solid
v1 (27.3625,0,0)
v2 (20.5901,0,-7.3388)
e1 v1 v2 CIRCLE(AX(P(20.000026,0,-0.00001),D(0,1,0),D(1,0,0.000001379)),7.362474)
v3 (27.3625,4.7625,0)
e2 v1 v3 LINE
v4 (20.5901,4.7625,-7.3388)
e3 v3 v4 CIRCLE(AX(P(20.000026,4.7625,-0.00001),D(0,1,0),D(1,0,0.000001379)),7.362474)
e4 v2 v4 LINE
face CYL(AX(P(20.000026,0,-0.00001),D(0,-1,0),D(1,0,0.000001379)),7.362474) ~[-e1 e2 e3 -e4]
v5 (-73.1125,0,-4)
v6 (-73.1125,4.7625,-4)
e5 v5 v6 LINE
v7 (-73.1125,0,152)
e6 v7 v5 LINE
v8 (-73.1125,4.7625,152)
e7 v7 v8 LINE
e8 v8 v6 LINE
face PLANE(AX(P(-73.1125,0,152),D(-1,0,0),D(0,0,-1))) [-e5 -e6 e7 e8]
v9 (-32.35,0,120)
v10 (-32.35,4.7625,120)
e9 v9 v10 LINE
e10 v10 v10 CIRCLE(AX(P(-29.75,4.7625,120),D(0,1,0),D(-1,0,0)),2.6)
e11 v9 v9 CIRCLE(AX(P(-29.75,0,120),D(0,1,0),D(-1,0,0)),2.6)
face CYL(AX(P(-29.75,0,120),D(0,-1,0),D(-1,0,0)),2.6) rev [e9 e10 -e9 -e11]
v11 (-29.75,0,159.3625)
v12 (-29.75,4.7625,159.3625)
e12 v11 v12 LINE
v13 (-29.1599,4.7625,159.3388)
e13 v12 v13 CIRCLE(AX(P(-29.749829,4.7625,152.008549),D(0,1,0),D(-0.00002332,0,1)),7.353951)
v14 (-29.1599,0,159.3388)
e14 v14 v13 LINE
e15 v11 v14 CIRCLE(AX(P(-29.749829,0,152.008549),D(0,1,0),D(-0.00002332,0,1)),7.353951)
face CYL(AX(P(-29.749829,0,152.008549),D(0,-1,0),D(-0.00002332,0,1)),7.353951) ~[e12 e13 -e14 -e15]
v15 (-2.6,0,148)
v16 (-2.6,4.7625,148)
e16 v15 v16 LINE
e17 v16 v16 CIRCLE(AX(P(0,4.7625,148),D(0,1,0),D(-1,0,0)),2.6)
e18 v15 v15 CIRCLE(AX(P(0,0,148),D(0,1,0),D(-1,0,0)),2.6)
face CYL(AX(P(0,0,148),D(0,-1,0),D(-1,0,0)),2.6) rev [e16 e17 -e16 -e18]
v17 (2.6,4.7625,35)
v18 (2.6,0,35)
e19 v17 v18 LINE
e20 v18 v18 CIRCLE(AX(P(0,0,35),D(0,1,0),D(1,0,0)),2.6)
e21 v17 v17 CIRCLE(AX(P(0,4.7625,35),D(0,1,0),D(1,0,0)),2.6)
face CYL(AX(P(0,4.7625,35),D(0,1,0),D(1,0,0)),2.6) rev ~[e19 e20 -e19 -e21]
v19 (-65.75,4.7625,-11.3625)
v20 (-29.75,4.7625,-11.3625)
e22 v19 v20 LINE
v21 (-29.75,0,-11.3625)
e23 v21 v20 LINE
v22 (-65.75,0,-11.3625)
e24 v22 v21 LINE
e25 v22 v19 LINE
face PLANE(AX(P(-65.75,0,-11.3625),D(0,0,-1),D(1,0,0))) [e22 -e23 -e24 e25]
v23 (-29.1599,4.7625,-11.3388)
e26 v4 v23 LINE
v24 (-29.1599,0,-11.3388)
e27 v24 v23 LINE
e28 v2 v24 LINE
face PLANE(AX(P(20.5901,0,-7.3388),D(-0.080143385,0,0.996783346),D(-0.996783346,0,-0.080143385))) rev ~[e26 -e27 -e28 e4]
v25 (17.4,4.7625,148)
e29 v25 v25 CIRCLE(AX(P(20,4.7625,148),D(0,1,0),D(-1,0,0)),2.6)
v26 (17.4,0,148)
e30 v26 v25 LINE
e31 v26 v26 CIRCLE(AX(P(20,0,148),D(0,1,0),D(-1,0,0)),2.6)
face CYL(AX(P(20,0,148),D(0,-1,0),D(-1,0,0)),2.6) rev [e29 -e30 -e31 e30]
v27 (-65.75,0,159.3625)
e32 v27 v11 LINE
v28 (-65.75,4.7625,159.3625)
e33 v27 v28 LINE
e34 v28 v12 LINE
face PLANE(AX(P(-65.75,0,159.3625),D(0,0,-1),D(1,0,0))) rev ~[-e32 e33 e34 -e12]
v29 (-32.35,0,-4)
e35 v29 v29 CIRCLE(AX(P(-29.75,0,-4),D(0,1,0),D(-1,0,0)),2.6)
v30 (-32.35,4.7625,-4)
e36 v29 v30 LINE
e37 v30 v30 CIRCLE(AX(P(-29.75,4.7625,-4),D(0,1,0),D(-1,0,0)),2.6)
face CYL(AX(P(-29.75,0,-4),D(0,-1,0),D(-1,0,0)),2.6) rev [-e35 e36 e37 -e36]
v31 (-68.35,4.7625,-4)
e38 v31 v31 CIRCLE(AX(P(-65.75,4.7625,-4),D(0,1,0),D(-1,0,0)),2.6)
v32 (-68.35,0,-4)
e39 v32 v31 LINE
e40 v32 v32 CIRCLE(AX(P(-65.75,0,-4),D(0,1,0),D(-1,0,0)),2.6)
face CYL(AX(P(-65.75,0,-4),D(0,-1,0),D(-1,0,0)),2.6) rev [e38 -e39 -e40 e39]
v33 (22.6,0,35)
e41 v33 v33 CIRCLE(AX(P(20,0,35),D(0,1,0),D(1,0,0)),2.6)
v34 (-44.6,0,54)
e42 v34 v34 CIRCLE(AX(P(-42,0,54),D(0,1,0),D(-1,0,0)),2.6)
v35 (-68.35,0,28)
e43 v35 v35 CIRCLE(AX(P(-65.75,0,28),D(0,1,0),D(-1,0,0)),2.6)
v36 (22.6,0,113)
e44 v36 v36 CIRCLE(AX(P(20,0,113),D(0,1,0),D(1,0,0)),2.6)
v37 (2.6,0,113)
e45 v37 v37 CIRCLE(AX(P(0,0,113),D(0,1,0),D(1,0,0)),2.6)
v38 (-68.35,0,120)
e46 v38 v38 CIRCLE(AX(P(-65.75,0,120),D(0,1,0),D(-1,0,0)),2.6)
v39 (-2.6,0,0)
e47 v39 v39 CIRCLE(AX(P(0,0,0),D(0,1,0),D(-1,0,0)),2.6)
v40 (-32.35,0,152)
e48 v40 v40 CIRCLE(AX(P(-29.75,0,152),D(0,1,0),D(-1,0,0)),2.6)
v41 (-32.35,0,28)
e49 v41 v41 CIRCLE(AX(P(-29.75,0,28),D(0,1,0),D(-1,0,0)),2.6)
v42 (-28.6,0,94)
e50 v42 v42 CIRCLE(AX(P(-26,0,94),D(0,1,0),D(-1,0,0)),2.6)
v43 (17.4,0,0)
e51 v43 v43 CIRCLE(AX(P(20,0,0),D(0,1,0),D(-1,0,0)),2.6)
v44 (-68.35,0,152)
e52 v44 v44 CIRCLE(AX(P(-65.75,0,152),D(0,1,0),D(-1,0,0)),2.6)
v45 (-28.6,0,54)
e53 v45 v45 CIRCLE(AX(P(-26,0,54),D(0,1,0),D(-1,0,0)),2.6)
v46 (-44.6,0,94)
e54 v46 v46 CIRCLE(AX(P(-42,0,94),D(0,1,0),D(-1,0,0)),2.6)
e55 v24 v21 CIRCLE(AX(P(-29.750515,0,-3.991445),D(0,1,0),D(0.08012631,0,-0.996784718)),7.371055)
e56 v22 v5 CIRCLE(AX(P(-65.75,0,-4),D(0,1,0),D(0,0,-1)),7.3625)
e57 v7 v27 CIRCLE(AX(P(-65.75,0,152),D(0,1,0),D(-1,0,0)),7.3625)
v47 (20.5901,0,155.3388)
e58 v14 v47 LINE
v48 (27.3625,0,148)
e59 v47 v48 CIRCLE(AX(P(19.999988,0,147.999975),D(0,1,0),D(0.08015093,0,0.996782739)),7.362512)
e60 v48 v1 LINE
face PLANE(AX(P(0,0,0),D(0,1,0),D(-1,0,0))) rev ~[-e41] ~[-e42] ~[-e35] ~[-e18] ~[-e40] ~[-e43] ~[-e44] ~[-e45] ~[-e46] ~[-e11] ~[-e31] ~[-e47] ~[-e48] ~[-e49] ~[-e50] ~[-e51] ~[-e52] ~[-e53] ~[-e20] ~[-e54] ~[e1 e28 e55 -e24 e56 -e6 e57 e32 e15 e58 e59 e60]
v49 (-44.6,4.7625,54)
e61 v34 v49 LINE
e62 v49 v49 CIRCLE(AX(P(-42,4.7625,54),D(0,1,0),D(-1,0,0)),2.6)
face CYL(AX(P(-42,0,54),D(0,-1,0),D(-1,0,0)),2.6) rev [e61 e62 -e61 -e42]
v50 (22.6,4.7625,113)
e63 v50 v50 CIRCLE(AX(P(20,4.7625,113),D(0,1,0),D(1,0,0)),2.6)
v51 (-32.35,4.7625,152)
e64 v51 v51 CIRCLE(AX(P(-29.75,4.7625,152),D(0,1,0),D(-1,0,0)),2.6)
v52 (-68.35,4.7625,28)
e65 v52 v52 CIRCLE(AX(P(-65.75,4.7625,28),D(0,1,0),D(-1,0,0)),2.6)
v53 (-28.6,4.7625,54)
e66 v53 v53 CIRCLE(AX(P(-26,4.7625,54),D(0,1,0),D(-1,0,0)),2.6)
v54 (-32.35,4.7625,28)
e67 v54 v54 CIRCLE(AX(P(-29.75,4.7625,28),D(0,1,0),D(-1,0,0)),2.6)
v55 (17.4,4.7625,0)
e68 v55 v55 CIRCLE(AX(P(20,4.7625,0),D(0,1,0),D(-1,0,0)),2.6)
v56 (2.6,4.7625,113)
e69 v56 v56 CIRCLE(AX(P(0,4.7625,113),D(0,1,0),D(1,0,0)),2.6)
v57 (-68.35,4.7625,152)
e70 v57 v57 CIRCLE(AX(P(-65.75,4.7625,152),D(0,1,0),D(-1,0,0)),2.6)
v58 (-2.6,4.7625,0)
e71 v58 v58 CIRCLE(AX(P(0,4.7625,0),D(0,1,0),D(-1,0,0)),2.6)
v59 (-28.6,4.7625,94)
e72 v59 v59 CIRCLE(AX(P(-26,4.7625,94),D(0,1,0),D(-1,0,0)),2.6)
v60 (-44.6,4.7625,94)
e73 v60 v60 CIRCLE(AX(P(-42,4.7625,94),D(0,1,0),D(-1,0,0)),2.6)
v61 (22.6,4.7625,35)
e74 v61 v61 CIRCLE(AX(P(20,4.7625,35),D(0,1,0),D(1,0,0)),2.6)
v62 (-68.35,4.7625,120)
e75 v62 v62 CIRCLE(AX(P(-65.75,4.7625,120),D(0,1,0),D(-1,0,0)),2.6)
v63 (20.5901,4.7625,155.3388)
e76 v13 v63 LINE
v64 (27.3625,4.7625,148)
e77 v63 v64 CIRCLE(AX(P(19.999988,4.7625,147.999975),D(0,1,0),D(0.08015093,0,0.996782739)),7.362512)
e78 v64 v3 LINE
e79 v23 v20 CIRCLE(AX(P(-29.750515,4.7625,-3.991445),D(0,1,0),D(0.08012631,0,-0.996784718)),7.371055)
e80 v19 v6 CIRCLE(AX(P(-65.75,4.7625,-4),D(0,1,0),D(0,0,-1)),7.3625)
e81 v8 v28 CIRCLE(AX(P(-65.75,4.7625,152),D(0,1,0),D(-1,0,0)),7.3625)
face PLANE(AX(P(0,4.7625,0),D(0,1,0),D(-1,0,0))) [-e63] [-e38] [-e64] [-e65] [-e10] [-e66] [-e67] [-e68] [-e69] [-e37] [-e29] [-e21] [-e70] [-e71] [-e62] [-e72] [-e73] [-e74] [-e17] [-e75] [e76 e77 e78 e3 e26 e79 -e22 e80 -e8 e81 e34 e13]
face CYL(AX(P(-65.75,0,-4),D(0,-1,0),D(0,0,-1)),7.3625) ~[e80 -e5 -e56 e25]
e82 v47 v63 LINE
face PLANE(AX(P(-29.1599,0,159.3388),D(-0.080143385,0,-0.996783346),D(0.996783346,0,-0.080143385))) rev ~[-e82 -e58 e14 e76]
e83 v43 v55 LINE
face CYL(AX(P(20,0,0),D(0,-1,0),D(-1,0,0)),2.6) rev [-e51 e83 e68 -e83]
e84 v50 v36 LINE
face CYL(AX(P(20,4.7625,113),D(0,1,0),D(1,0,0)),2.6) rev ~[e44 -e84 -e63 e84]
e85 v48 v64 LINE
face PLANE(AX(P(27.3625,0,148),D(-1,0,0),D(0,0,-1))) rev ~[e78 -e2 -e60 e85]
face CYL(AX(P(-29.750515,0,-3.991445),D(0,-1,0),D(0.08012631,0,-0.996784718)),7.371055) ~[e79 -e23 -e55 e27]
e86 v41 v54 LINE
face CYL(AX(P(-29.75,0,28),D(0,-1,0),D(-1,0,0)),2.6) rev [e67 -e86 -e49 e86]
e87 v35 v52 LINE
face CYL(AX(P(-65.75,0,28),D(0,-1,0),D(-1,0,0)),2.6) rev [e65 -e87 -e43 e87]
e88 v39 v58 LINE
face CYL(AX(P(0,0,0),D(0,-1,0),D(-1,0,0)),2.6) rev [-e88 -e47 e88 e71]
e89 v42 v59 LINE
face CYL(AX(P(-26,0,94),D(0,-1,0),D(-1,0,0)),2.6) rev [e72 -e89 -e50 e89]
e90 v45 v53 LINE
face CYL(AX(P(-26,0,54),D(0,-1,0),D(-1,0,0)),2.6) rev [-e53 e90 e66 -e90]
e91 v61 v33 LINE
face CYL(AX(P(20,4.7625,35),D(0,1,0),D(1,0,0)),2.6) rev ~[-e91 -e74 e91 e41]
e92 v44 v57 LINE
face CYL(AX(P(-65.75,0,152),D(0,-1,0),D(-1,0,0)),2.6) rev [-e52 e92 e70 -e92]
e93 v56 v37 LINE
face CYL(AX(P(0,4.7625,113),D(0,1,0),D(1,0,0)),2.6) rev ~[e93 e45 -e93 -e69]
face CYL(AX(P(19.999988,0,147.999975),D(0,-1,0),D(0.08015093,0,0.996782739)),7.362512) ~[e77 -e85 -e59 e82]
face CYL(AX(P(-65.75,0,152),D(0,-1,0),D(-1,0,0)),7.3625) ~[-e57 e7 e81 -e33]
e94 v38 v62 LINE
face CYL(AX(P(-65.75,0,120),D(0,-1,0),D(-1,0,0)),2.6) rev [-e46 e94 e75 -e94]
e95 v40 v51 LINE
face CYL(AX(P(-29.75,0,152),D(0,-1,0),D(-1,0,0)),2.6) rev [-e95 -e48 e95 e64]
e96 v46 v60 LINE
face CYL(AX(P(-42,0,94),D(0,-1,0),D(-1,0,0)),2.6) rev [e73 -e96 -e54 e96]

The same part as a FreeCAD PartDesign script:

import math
import FreeCAD as App
import Part
import Sketcher

doc = App.newDocument("Part")
params = doc.addObject("Spreadsheet::Sheet", "Params")
for row, (alias, value) in enumerate([
    ("sketch1_diameter", "5.2 mm"),
    ("sketch1_diameter2", "5.2 mm"),
    ("sketch1_diameter3", "5.2 mm"),
    ("sketch1_diameter4", "5.2 mm"),
    ("sketch1_diameter5", "5.2 mm"),
    ("pad1_length", "4.7625 mm"),
    ("sketch2_diameter", "5.2 mm"),
    ("sketch3_diameter", "5.2 mm"),
], start=1):
    params.set(f"A{row}", alias)
    params.set(f"B{row}", "=" + value)
    params.setAlias(f"B{row}", alias)

body = doc.addObject("PartDesign::Body", "Body")

sketch1 = body.newObject("Sketcher::SketchObject", "Sketch")
sketch1.AttachmentSupport = (doc.getObject("XZ_Plane"), [""])
sketch1.MapMode = "FlatFace"
sketch1.addGeometry(Part.LineSegment(App.Vector(-73.1125, -4, 0), App.Vector(-73.1125, 152, 0)), False)
sketch1.addGeometry(Part.ArcOfCircle(Part.Circle(App.Vector(-65.75, 152, 0), App.Vector(0, 0, 1), 7.3625), math.radians(90), math.radians(180)), False)
sketch1.addGeometry(Part.LineSegment(App.Vector(-65.75, 159.3625, 0), App.Vector(-29.75, 159.3625, 0)), False)
sketch1.addGeometry(Part.ArcOfCircle(Part.Circle(App.Vector(-29.749829, 152.008549, 0), App.Vector(0, 0, 1), 7.353951), math.radians(85.398831), math.radians(90.001336)), False)
sketch1.addGeometry(Part.LineSegment(App.Vector(-29.1599, 159.3388, 0), App.Vector(20.5901, 155.3388, 0)), False)
sketch1.addGeometry(Part.ArcOfCircle(Part.Circle(App.Vector(20, 148, 0), App.Vector(0, 0, 1), 7.3625), math.radians(0), math.radians(85.402838)), False)
sketch1.addGeometry(Part.LineSegment(App.Vector(27.3625, 148, 0), App.Vector(27.3625, 0, 0)), False)
sketch1.addGeometry(Part.ArcOfCircle(Part.Circle(App.Vector(20, 0, 0), App.Vector(0, 0, 1), 7.3625), math.radians(-85.402838), math.radians(0)), False)
sketch1.addGeometry(Part.LineSegment(App.Vector(20.5901, -7.3388, 0), App.Vector(-29.1599, -11.3388, 0)), False)
sketch1.addGeometry(Part.ArcOfCircle(Part.Circle(App.Vector(-29.750515, -3.991445, 0), App.Vector(0, 0, 1), 7.371055), math.radians(-89.995994), math.radians(-85.404174)), False)
sketch1.addGeometry(Part.LineSegment(App.Vector(-29.75, -11.3625, 0), App.Vector(-65.75, -11.3625, 0)), False)
sketch1.addGeometry(Part.ArcOfCircle(Part.Circle(App.Vector(-65.75, -4, 0), App.Vector(0, 0, 1), 7.3625), math.radians(180), math.radians(270)), False)
sketch1.addGeometry(Part.Circle(App.Vector(20, 0, 0), App.Vector(0, 0, 1), 2.6), False)
sketch1.addGeometry(Part.Circle(App.Vector(0, 0, 0), App.Vector(0, 0, 1), 2.6), False)
sketch1.addGeometry(Part.Circle(App.Vector(-29.75, -4, 0), App.Vector(0, 0, 1), 2.6), False)
sketch1.addGeometry(Part.Circle(App.Vector(-29.75, 28, 0), App.Vector(0, 0, 1), 2.6), False)
sketch1.addGeometry(Part.Circle(App.Vector(-65.75, -4, 0), App.Vector(0, 0, 1), 2.6), False)
sketch1.addGeometry(Part.Circle(App.Vector(-65.75, 28, 0), App.Vector(0, 0, 1), 2.6), False)
sketch1.addGeometry(Part.Circle(App.Vector(-26, 54, 0), App.Vector(0, 0, 1), 2.6), False)
sketch1.addGeometry(Part.Circle(App.Vector(-42, 54, 0), App.Vector(0, 0, 1), 2.6), False)
sketch1.addGeometry(Part.Circle(App.Vector(20, 148, 0), App.Vector(0, 0, 1), 2.6), False)
sketch1.addGeometry(Part.Circle(App.Vector(0, 148, 0), App.Vector(0, 0, 1), 2.6), False)
sketch1.addGeometry(Part.Circle(App.Vector(-26, 94, 0), App.Vector(0, 0, 1), 2.6), False)
sketch1.addGeometry(Part.Circle(App.Vector(-42, 94, 0), App.Vector(0, 0, 1), 2.6), False)
sketch1.addGeometry(Part.Circle(App.Vector(-29.75, 120, 0), App.Vector(0, 0, 1), 2.6), False)
sketch1.addGeometry(Part.Circle(App.Vector(-29.75, 152, 0), App.Vector(0, 0, 1), 2.6), False)
sketch1.addGeometry(Part.Circle(App.Vector(-65.75, 120, 0), App.Vector(0, 0, 1), 2.6), False)
sketch1.addGeometry(Part.Circle(App.Vector(-65.75, 152, 0), App.Vector(0, 0, 1), 2.6), False)
sketch1.addConstraint(Sketcher.Constraint("Coincident", 0, 2, 1, 2))
sketch1.addConstraint(Sketcher.Constraint("Coincident", 1, 1, 2, 1))
sketch1.addConstraint(Sketcher.Constraint("Coincident", 2, 2, 3, 2))
sketch1.addConstraint(Sketcher.Constraint("Coincident", 3, 1, 4, 1))
sketch1.addConstraint(Sketcher.Constraint("Coincident", 4, 2, 5, 2))
sketch1.addConstraint(Sketcher.Constraint("Coincident", 5, 1, 6, 1))
sketch1.addConstraint(Sketcher.Constraint("Coincident", 6, 2, 7, 2))
sketch1.addConstraint(Sketcher.Constraint("Coincident", 7, 1, 8, 1))
sketch1.addConstraint(Sketcher.Constraint("Coincident", 8, 2, 9, 2))
sketch1.addConstraint(Sketcher.Constraint("Coincident", 9, 1, 10, 1))
sketch1.addConstraint(Sketcher.Constraint("Coincident", 10, 2, 11, 2))
sketch1.addConstraint(Sketcher.Constraint("Coincident", 11, 1, 0, 1))
sketch1.addConstraint(Sketcher.Constraint("Vertical", 0))
sketch1.addConstraint(Sketcher.Constraint("Horizontal", 2))
sketch1.addConstraint(Sketcher.Constraint("Vertical", 6))
sketch1.addConstraint(Sketcher.Constraint("Horizontal", 10))
sketch1.addConstraint(Sketcher.Constraint("Coincident", 13, 3, -1, 1))
sketch1.addConstraint(Sketcher.Constraint("Coincident", 12, 3, 7, 3))
sketch1.addConstraint(Sketcher.Constraint("Coincident", 16, 3, 11, 3))
sketch1.addConstraint(Sketcher.Constraint("Coincident", 20, 3, 5, 3))
sketch1.addConstraint(Sketcher.Constraint("Coincident", 27, 3, 1, 3))
sketch1.addConstraint(Sketcher.Constraint("PointOnObject", 7, 3, -1))
sketch1.addConstraint(Sketcher.Constraint("PointOnObject", 21, 3, -2))
sketch1.addConstraint(Sketcher.Constraint("PointOnObject", 6, 2, -1))
sketch1.addConstraint(Sketcher.Constraint("Diameter", 12, 5.2))
sketch1.addConstraint(Sketcher.Constraint("Diameter", 13, 5.2))
sketch1.addConstraint(Sketcher.Constraint("Diameter", 14, 5.2))
sketch1.addConstraint(Sketcher.Constraint("Diameter", 15, 5.2))
sketch1.addConstraint(Sketcher.Constraint("Diameter", 16, 5.2))
sketch1.addConstraint(Sketcher.Constraint("Diameter", 17, 5.2))
sketch1.addConstraint(Sketcher.Constraint("Diameter", 18, 5.2))
sketch1.addConstraint(Sketcher.Constraint("Diameter", 19, 5.2))
sketch1.addConstraint(Sketcher.Constraint("Diameter", 20, 5.2))
sketch1.addConstraint(Sketcher.Constraint("Diameter", 21, 5.2))
sketch1.addConstraint(Sketcher.Constraint("Diameter", 22, 5.2))
sketch1.addConstraint(Sketcher.Constraint("Diameter", 23, 5.2))
sketch1.addConstraint(Sketcher.Constraint("Diameter", 24, 5.2))
sketch1.addConstraint(Sketcher.Constraint("Diameter", 25, 5.2))
sketch1.addConstraint(Sketcher.Constraint("Diameter", 26, 5.2))
sketch1.addConstraint(Sketcher.Constraint("Diameter", 27, 5.2))
sketch1.addConstraint(Sketcher.Constraint("DistanceX", 2, 1, 2, 2, 36.0))
sketch1.addConstraint(Sketcher.Constraint("DistanceX", 10, 2, 10, 1, 36.0))
sketch1.addConstraint(Sketcher.Constraint("DistanceY", 6, 2, 6, 1, 148.0))
sketch1.addConstraint(Sketcher.Constraint("DistanceX", -1, 1, 5, 3, 20.0))
sketch1.addConstraint(Sketcher.Constraint("DistanceY", -1, 1, 5, 3, 148.0))
sketch1.addConstraint(Sketcher.Constraint("DistanceX", -1, 1, 7, 3, 20.0))
sketch1.addConstraint(Sketcher.Constraint("DistanceY", 11, 3, -1, 1, 4.0))
sketch1.addConstraint(Sketcher.Constraint("DistanceY", 14, 3, -1, 1, 4.0))
sketch1.addConstraint(Sketcher.Constraint("DistanceX", 18, 3, -1, 1, 26.0))
sketch1.addConstraint(Sketcher.Constraint("DistanceY", -1, 1, 21, 3, 148.0))
sketch1.addConstraint(Sketcher.Constraint("DistanceX", 22, 3, -1, 1, 26.0))
sketch1.addConstraint(Sketcher.Constraint("DistanceY", 11, 1, -1, 1, 4.0))
sketch1.addConstraint(Sketcher.Constraint("DistanceY", 5, 3, 1, 3, 4.0))
sketch1.addConstraint(Sketcher.Constraint("DistanceX", 11, 3, 14, 3, 36.0))
sketch1.addConstraint(Sketcher.Constraint("DistanceY", 14, 3, 15, 3, 32.0))
sketch1.addConstraint(Sketcher.Constraint("DistanceX", 11, 3, 15, 3, 36.0))
sketch1.addConstraint(Sketcher.Constraint("DistanceY", 11, 3, 17, 3, 32.0))
sketch1.addConstraint(Sketcher.Constraint("DistanceX", 17, 3, 15, 3, 36.0))
sketch1.addConstraint(Sketcher.Constraint("DistanceY", 15, 3, 18, 3, 26.0))
sketch1.addConstraint(Sketcher.Constraint("DistanceX", 19, 3, 18, 3, 16.0))
sketch1.addConstraint(Sketcher.Constraint("DistanceY", 15, 3, 19, 3, 26.0))
sketch1.addConstraint(Sketcher.Constraint("DistanceY", 18, 3, 22, 3, 40.0))
sketch1.addConstraint(Sketcher.Constraint("DistanceX", 23, 3, 22, 3, 16.0))
sketch1.addConstraint(Sketcher.Constraint("DistanceY", 19, 3, 23, 3, 40.0))
sketch1.addConstraint(Sketcher.Constraint("DistanceY", 22, 3, 24, 3, 26.0))
sketch1.addConstraint(Sketcher.Constraint("DistanceX", 1, 3, 24, 3, 36.0))
sketch1.addConstraint(Sketcher.Constraint("DistanceY", 21, 3, 25, 3, 4.0))
sketch1.addConstraint(Sketcher.Constraint("DistanceX", 1, 3, 25, 3, 36.0))
sketch1.addConstraint(Sketcher.Constraint("DistanceY", 26, 3, 1, 3, 32.0))
sketch1.addConstraint(Sketcher.Constraint("DistanceX", 26, 3, 24, 3, 36.0))
sketch1.addConstraint(Sketcher.Constraint("DistanceY", 26, 3, 0, 2, 32.0))
sketch1.addConstraint(Sketcher.Constraint("DistanceX", 1, 1, 25, 3, 36.0))
sketch1.addConstraint(Sketcher.Constraint("DistanceY", 4, 2, 3, 1, 4.0))
sketch1.addConstraint(Sketcher.Constraint("DistanceX", 11, 3, 9, 1, 36.0))
sketch1.addConstraint(Sketcher.Constraint("DistanceX", 14, 3, -1, 1, 29.75))
sketch1.addConstraint(Sketcher.Constraint("DistanceX", 24, 3, -1, 1, 29.75))
sketch1.addConstraint(Sketcher.Constraint("Radius", 3, 7.354))
sketch1.addConstraint(Sketcher.Constraint("Radius", 9, 7.371))
sketch1.addConstraint(Sketcher.Constraint("DistanceY", 9, 3, 3, 3, 156.0))
sketch1.addConstraint(Sketcher.Constraint("DistanceX", 3, 3, -1, 1, 29.7498))
sketch1.addConstraint(Sketcher.Constraint("DistanceX", 9, 3, -1, 1, 29.7505))
sketch1.addConstraint(Sketcher.Constraint("Radius", 5, 7.3625))
sketch1.addConstraint(Sketcher.Constraint("DistanceX", 3, 1, -1, 1, 29.16))
sketch1.addConstraint(Sketcher.Constraint("DistanceX", -1, 1, 7, 1, 20.59))
sketch1.addConstraint(Sketcher.Constraint("DistanceX", 8, 2, -1, 1, 29.16))
sketch1.setExpression("Constraints[24]", "Params.sketch1_diameter")
sketch1.setExpression("Constraints[25]", "Params.sketch1_diameter2")
sketch1.setExpression("Constraints[26]", "Params.sketch1_diameter3")
sketch1.setExpression("Constraints[27]", "Params.sketch1_diameter4")
sketch1.setExpression("Constraints[28]", "Params.sketch1_diameter5")
pad1 = body.newObject("PartDesign::Pad", "Pad")
pad1.Profile = sketch1
pad1.setExpression("Length", "Params.pad1_length")
pad1.Reversed = True

sketch2 = body.newObject("Sketcher::SketchObject", "Sketch001")
sketch2.AttachmentSupport = (doc.getObject("XZ_Plane"), [""])
sketch2.MapMode = "FlatFace"
sketch2.AttachmentOffset = App.Placement(App.Vector(0, 0, -4.7625), App.Rotation())
sketch2.addGeometry(Part.Circle(App.Vector(0, 113, 0), App.Vector(0, 0, 1), 2.6), False)
sketch2.addGeometry(Part.Circle(App.Vector(20, 113, 0), App.Vector(0, 0, 1), 2.6), False)
sketch2.addConstraint(Sketcher.Constraint("Equal", 0, 1))
sketch2.addConstraint(Sketcher.Constraint("PointOnObject", 0, 3, -2))
sketch2.addConstraint(Sketcher.Constraint("Horizontal", 0, 3, 1, 3))
sketch2.addConstraint(Sketcher.Constraint("Diameter", 0, 5.2))
sketch2.addConstraint(Sketcher.Constraint("DistanceY", -1, 1, 0, 3, 113.0))
sketch2.addConstraint(Sketcher.Constraint("DistanceX", -1, 1, 1, 3, 20.0))
sketch2.setExpression("Constraints[3]", "Params.sketch2_diameter")
pocket1 = body.newObject("PartDesign::Pocket", "Pocket")
pocket1.Profile = sketch2
pocket1.Type = "ThroughAll"
pocket1.Reversed = True

sketch3 = body.newObject("Sketcher::SketchObject", "Sketch002")
sketch3.AttachmentSupport = (doc.getObject("XZ_Plane"), [""])
sketch3.MapMode = "FlatFace"
sketch3.AttachmentOffset = App.Placement(App.Vector(0, 0, -4.7625), App.Rotation())
sketch3.addGeometry(Part.Circle(App.Vector(0, 35, 0), App.Vector(0, 0, 1), 2.6), False)
sketch3.addGeometry(Part.Circle(App.Vector(20, 35, 0), App.Vector(0, 0, 1), 2.6), False)
sketch3.addConstraint(Sketcher.Constraint("Equal", 0, 1))
sketch3.addConstraint(Sketcher.Constraint("PointOnObject", 0, 3, -2))
sketch3.addConstraint(Sketcher.Constraint("Horizontal", 0, 3, 1, 3))
sketch3.addConstraint(Sketcher.Constraint("DistanceY", -1, 1, 0, 3, 35.0))
sketch3.addConstraint(Sketcher.Constraint("Diameter", 0, 5.2))
sketch3.addConstraint(Sketcher.Constraint("DistanceX", -1, 1, 1, 3, 20.0))
sketch3.setExpression("Constraints[4]", "Params.sketch3_diameter")
pocket2 = body.newObject("PartDesign::Pocket", "Pocket001")
pocket2.Profile = sketch3
pocket2.Type = "ThroughAll"
pocket2.Reversed = True

doc.recompute()
